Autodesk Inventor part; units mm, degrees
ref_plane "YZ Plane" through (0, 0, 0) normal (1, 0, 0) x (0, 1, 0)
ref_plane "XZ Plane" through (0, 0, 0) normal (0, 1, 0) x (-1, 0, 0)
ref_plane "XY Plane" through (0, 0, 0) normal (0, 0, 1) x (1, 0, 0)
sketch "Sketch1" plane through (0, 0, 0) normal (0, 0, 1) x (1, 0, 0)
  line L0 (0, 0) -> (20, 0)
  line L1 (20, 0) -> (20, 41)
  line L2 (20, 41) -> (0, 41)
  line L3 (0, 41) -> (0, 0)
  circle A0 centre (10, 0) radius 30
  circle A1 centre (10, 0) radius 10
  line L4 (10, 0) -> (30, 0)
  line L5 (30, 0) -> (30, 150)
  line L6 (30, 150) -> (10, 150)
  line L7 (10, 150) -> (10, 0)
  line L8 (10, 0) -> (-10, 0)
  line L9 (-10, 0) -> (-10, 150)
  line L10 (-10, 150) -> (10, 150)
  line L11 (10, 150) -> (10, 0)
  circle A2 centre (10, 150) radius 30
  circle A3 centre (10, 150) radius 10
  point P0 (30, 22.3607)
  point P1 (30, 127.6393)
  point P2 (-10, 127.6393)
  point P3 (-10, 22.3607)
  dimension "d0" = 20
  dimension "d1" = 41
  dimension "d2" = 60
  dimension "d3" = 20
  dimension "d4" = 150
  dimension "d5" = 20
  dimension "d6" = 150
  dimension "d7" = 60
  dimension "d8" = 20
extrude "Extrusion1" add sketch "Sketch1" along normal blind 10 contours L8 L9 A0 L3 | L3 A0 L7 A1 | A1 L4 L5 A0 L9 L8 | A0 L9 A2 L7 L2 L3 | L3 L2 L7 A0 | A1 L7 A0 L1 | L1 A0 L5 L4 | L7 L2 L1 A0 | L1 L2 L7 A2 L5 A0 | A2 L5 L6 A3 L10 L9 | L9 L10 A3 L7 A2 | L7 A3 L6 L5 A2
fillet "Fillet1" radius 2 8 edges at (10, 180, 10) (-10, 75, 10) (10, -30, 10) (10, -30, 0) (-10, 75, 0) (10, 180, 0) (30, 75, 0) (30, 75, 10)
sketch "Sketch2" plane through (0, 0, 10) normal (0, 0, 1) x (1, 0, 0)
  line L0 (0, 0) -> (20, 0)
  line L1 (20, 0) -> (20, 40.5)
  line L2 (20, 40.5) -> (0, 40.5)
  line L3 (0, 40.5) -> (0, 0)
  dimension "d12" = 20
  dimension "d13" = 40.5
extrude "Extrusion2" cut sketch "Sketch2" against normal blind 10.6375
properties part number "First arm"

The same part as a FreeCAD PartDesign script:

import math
import FreeCAD as App
import Part
import Sketcher

V = App.Vector


def edges_at(feature, points):
    """Names of the edges that pass closest to the given points."""
    edges = feature.Shape.Edges
    near = lambda p: min(range(len(edges)), key=lambda i: edges[i].distToShape(Part.Vertex(*p))[0])
    return sorted({f"Edge{near(p) + 1}" for p in points})


def add_polygon(sketch, points):
    """Adds a closed chain of lines whose ends are joined by coincident constraints."""
    first, n = sketch.GeometryCount, len(points)
    for a, b in zip(points, points[1:] + points[:1]):
        sketch.addGeometry(Part.LineSegment(App.Vector(*a, 0), App.Vector(*b, 0)), False)
    for i in range(n):
        sketch.addConstraint(Sketcher.Constraint("Coincident", first + i, 2, first + (i + 1) % n, 1))

doc = App.newDocument("Part")
body = doc.addObject("PartDesign::Body", "Body")

# Sketch on XY plane
sketch1 = body.newObject("Sketcher::SketchObject", "Sketch")
sketch1.AttachmentSupport = (doc.getObject("XY_Plane"), [""])
sketch1.MapMode = "FlatFace"
sketch1.addGeometry(Part.LineSegment(V(30, 22, 0), V(30, 128, 0)), False)
sketch1.addGeometry(Part.ArcOfCircle(Part.Circle(V(10, 150, 0), V(0, 0, 1), 30), math.radians(-48), math.radians(228)), False)
sketch1.addGeometry(Part.LineSegment(V(-10, 128, 0), V(-10, 22, 0)), False)
sketch1.addGeometry(Part.ArcOfCircle(Part.Circle(V(10, 0, 0), V(0, 0, 1), 30), math.radians(132), math.radians(408)), False)
sketch1.addGeometry(Part.Circle(V(10, 0, 0), V(0, 0, 1), 10), False)
sketch1.addGeometry(Part.Circle(V(10, 150, 0), V(0, 0, 1), 10), False)
sketch1.addConstraint(Sketcher.Constraint("Coincident", 0, 2, 1, 1))
sketch1.addConstraint(Sketcher.Constraint("Coincident", 1, 2, 2, 1))
sketch1.addConstraint(Sketcher.Constraint("Coincident", 2, 2, 3, 1))
sketch1.addConstraint(Sketcher.Constraint("Coincident", 3, 2, 0, 1))
sketch1.addConstraint(Sketcher.Constraint("Vertical", 0))
sketch1.addConstraint(Sketcher.Constraint("Vertical", 2))
sketch1.addConstraint(Sketcher.Constraint("Coincident", 4, 3, 3, 3))
sketch1.addConstraint(Sketcher.Constraint("Coincident", 5, 3, 1, 3))
sketch1.addConstraint(Sketcher.Constraint("Equal", 1, 3))
sketch1.addConstraint(Sketcher.Constraint("Equal", 4, 5))
sketch1.addConstraint(Sketcher.Constraint("PointOnObject", 3, 3, -1))
sketch1.addConstraint(Sketcher.Constraint("Horizontal", 0, 2, 1, 2))
sketch1.addConstraint(Sketcher.Constraint("Horizontal", 2, 2, 3, 2))
sketch1.addConstraint(Sketcher.Constraint("Diameter", 4, 20.0))
sketch1.addConstraint(Sketcher.Constraint("Radius", 1, 30.0))
sketch1.addConstraint(Sketcher.Constraint("DistanceY", -1, 1, 1, 3, 150.0))
sketch1.addConstraint(Sketcher.Constraint("DistanceX", 1, 3, 0, 2, 20.0))
sketch1.addConstraint(Sketcher.Constraint("DistanceX", -1, 1, 1, 3, 10.0))
pad1 = body.newObject("PartDesign::Pad", "Pad")
pad1.Profile = sketch1
pad1.Length = 10
doc.recompute()

fillet = body.newObject("PartDesign::Fillet", "Fillet")
fillet.Base = (pad1, edges_at(pad1, [
    (10, 180, 10),
    (-10, 75, 10),
    (10, -30, 10),
    (10, -30, 0),
    (-10, 75, 0),
    (10, 180, 0),
    (30, 75, 0),
    (30, 75, 10),
]))
fillet.Radius = 2

# Sketch on XY plane
sketch2 = body.newObject("Sketcher::SketchObject", "Sketch001")
sketch2.AttachmentSupport = (doc.getObject("XY_Plane"), [""])
sketch2.MapMode = "FlatFace"
sketch2.AttachmentOffset = App.Placement(V(0, 0, 10), App.Rotation())
add_polygon(sketch2, [(0, 40), (0, 0), (20, 0), (20, 40)])  # lines 0-3
sketch2.addConstraint(Sketcher.Constraint("Vertical", 0))
sketch2.addConstraint(Sketcher.Constraint("Horizontal", 1))
sketch2.addConstraint(Sketcher.Constraint("Vertical", 2))
sketch2.addConstraint(Sketcher.Constraint("Horizontal", 3))
sketch2.addConstraint(Sketcher.Constraint("Coincident", 0, 2, -1, 1))
sketch2.addConstraint(Sketcher.Constraint("DistanceX", 1, 1, 1, 2, 20.0))
sketch2.addConstraint(Sketcher.Constraint("DistanceY", 0, 2, 0, 1, 40.5))
pocket1 = body.newObject("PartDesign::Pocket", "Pocket")
pocket1.Profile = sketch2
pocket1.Length = 10.6375

doc.recompute()
